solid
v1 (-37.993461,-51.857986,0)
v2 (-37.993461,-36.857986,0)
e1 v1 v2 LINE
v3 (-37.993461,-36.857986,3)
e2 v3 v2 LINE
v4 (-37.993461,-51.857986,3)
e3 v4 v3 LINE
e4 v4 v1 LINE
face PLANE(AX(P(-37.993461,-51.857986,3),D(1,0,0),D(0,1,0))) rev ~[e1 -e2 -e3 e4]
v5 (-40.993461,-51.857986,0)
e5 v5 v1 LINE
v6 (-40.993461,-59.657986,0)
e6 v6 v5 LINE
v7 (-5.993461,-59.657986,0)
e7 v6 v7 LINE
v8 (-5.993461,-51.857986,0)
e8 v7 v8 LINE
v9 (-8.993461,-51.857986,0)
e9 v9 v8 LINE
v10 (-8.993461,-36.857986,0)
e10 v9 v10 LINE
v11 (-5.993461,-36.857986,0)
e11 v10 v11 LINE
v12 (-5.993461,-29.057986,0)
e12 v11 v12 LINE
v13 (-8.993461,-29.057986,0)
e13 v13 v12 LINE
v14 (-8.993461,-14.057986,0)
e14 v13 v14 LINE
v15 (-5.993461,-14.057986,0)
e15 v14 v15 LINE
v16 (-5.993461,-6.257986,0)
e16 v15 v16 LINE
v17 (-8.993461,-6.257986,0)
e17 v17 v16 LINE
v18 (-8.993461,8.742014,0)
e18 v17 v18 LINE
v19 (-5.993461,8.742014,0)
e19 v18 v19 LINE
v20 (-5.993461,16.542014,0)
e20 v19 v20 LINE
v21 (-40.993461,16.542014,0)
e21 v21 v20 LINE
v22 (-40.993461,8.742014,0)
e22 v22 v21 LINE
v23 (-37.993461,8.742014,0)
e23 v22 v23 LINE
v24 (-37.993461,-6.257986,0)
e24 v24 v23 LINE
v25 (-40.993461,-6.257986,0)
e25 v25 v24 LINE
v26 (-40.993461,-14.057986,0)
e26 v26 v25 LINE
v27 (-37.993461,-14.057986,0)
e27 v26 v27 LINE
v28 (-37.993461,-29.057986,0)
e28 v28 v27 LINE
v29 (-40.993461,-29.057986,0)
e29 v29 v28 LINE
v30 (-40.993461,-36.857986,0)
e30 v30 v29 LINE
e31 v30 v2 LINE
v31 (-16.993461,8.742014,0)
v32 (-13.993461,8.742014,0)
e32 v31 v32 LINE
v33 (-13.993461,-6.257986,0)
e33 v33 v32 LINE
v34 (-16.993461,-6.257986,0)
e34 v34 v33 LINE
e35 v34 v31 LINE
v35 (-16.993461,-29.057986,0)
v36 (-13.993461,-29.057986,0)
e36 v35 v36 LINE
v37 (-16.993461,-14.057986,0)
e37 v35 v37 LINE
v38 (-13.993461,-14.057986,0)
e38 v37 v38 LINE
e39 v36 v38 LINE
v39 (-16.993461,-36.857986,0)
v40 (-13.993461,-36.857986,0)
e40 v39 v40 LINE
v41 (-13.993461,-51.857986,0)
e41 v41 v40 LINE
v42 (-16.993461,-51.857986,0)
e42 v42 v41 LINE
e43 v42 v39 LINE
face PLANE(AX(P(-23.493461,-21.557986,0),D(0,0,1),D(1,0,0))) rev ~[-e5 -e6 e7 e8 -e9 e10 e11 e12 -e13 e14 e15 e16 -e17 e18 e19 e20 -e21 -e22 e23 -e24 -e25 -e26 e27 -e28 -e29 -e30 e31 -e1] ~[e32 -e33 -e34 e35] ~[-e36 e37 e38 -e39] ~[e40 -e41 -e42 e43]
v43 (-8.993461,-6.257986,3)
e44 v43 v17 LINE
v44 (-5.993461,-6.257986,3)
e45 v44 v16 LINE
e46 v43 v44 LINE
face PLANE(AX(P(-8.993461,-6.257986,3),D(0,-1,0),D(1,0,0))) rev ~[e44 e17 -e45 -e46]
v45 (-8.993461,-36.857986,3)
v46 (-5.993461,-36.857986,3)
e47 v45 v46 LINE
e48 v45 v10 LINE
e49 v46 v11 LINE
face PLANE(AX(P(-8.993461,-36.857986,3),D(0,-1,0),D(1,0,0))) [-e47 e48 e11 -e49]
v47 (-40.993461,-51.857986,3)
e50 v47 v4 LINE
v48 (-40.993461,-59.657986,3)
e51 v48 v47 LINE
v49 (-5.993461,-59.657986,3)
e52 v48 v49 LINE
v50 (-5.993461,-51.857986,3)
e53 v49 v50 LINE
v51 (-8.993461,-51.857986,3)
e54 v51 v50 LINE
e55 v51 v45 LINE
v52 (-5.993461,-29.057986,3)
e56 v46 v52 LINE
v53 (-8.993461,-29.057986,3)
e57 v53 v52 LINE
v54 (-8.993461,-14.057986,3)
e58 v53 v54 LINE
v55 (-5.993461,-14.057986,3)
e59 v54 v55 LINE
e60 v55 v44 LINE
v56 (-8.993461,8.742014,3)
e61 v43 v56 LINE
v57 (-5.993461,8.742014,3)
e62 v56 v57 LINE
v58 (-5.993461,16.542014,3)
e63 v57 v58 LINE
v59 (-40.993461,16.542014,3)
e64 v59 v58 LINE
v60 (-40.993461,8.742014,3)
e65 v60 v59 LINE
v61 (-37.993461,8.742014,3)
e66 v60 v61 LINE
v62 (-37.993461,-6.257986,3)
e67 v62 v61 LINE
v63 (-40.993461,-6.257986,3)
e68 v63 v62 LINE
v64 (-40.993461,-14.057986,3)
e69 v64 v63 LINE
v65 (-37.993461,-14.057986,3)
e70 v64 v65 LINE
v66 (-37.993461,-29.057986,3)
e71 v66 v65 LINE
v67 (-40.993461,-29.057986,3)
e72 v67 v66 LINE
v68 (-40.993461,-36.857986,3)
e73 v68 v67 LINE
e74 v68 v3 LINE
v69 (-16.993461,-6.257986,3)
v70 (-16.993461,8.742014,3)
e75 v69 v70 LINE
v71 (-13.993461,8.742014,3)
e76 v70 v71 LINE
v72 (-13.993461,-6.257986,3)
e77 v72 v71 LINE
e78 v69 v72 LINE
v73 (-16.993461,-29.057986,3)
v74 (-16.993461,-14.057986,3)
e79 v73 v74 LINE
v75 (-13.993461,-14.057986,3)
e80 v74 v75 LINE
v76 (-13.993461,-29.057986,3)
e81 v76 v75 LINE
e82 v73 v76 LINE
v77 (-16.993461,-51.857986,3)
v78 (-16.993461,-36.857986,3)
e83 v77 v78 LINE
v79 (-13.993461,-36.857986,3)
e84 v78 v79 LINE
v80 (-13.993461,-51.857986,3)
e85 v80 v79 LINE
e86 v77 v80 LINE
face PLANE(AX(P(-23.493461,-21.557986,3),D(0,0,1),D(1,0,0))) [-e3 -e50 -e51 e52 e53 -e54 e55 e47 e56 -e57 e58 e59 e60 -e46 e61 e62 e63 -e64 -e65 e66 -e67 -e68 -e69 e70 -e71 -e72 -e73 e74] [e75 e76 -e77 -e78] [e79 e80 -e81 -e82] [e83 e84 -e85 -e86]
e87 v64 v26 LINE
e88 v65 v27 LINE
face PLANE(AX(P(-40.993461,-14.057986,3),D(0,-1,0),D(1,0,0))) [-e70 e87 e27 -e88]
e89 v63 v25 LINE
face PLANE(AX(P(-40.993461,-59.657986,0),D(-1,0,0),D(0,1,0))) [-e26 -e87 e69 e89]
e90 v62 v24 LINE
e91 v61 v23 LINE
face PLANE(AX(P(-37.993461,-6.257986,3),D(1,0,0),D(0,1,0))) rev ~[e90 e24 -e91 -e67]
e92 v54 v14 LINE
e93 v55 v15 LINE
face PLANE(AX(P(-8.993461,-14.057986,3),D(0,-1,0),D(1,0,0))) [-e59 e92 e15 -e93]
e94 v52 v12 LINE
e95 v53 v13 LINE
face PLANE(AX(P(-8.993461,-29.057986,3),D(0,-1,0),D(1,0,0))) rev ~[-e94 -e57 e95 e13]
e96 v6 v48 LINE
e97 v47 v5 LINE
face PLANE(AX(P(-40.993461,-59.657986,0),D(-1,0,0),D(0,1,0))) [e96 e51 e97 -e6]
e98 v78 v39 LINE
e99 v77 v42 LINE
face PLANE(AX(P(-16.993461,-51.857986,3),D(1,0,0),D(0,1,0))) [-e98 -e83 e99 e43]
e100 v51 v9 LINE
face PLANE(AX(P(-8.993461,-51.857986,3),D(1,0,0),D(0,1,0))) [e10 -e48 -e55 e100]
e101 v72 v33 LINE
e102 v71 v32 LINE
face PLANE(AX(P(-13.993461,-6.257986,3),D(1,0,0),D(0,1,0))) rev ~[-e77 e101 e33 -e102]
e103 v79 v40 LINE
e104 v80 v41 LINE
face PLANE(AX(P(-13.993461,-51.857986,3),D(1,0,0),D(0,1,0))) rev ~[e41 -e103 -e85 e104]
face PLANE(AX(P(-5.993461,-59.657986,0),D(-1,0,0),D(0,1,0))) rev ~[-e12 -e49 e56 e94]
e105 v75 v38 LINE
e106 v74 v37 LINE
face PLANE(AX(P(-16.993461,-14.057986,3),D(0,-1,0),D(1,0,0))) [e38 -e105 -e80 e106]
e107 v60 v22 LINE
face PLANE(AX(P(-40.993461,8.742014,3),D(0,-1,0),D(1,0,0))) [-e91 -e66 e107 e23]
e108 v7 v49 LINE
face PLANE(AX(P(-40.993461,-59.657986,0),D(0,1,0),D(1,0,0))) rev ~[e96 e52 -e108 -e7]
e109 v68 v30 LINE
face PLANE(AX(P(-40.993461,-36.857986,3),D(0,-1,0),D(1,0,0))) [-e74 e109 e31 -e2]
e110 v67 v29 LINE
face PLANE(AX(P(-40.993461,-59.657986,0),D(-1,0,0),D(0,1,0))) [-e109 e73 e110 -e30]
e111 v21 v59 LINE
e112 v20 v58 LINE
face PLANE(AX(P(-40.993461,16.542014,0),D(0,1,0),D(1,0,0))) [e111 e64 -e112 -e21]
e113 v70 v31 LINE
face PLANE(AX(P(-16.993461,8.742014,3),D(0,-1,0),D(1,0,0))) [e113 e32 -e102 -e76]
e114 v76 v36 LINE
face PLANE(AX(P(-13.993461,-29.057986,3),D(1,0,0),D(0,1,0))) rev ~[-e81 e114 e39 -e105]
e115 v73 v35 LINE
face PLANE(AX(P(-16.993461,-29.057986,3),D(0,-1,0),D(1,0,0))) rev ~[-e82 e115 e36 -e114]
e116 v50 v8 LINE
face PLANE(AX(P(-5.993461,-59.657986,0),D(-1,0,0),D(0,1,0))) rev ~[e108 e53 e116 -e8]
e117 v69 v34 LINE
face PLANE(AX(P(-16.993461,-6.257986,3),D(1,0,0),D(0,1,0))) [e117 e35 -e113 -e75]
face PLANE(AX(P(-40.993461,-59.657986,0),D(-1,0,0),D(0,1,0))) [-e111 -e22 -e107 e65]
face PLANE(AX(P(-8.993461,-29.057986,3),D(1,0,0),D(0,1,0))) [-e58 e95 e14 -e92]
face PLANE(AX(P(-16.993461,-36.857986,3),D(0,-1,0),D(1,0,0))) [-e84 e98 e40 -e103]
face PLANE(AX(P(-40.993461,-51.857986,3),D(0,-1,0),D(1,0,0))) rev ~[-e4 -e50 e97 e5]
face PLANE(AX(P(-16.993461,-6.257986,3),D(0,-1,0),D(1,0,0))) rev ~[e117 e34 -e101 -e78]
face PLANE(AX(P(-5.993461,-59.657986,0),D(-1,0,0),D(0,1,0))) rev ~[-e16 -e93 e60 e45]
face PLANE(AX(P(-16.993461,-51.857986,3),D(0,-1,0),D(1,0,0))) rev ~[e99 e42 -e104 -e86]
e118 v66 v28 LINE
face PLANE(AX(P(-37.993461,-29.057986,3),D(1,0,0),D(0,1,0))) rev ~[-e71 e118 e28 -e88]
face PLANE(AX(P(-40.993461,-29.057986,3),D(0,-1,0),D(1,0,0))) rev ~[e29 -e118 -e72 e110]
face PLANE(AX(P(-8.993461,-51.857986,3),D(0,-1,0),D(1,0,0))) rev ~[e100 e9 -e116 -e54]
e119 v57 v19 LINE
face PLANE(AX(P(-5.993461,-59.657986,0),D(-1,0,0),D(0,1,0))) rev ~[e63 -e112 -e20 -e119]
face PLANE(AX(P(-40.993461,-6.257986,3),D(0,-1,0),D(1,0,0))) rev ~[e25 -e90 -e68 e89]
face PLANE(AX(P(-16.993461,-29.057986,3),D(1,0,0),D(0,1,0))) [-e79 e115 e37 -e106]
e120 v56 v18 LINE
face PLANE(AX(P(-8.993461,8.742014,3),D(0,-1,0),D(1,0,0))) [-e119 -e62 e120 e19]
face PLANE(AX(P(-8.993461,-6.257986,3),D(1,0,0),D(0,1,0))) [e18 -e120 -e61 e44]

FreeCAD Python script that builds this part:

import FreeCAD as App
import Part
import Sketcher

V = App.Vector
Q = App.Units.Quantity


def add_polygon(sketch, points):
    """Adds a closed chain of lines whose ends are joined by coincident constraints."""
    first, n = sketch.GeometryCount, len(points)
    for a, b in zip(points, points[1:] + points[:1]):
        sketch.addGeometry(Part.LineSegment(App.Vector(*a, 0), App.Vector(*b, 0)), False)
    for i in range(n):
        sketch.addConstraint(Sketcher.Constraint("Coincident", first + i, 2, first + (i + 1) % n, 1))

doc = App.newDocument("Part")
body = doc.addObject("PartDesign::Body", "Body")

# Sketch on XY plane
sketch1 = body.newObject("Sketcher::SketchObject", "Sketch")
sketch1.AttachmentSupport = (doc.getObject("XY_Plane"), [""])
sketch1.MapMode = "FlatFace"
add_polygon(sketch1, [(-40.993461, 16.542014), (-40.993461, -59.657986), (-5.993461, -59.657986), (-5.993461, 16.542014)])  # lines 0-3
sketch1.addConstraint([
    Sketcher.Constraint("Vertical", 0),
    Sketcher.Constraint("Horizontal", 1),
    Sketcher.Constraint("Vertical", 2),
    Sketcher.Constraint("Horizontal", 3),
    Sketcher.Constraint("DistanceX", 1, 1, 1, 2, Q("35 mm")),
    Sketcher.Constraint("DistanceY", 0, 2, 0, 1, Q("76.2 mm")),
    Sketcher.Constraint("DistanceX", 0, 2, -1, 1, Q("40.993461 mm")),
    Sketcher.Constraint("DistanceY", 0, 2, -1, 1, Q("59.657986 mm")),
])
pad1 = body.newObject("PartDesign::Pad", "Pad")
pad1.Profile = sketch1
pad1.Length = 3

# Sketch on XY plane
sketch2 = body.newObject("Sketcher::SketchObject", "Sketch001")
sketch2.AttachmentSupport = (doc.getObject("XY_Plane"), [""])
sketch2.MapMode = "FlatFace"
sketch2.AttachmentOffset = App.Placement(V(0, 0, 3), App.Rotation())
add_polygon(sketch2, [(-40.993461, 8.742014), (-40.993461, -6.257986), (-37.993461, -6.257986), (-37.993461, 8.742014)])  # lines 0-3
add_polygon(sketch2, [(-8.993461, 8.742014), (-8.993461, -6.257986), (-5.993461, -6.257986), (-5.993461, 8.742014)])  # lines 4-7
sketch2.addConstraint([
    Sketcher.Constraint("Vertical", 0),
    Sketcher.Constraint("Horizontal", 1),
    Sketcher.Constraint("Vertical", 2),
    Sketcher.Constraint("Horizontal", 3),
    Sketcher.Constraint("Vertical", 4),
    Sketcher.Constraint("Horizontal", 5),
    Sketcher.Constraint("Vertical", 6),
    Sketcher.Constraint("Horizontal", 7),
    Sketcher.Constraint("Horizontal", 1, 2, 4, 2),
    Sketcher.Constraint("Horizontal", 3, 2, 6, 2),
    Sketcher.Constraint("Equal", 3, 5),
    Sketcher.Constraint("DistanceX", 1, 1, 1, 2, Q("3 mm")),
    Sketcher.Constraint("DistanceY", 0, 2, 0, 1, Q("15 mm")),
    Sketcher.Constraint("DistanceX", 1, 2, 4, 2, Q("29 mm")),
    Sketcher.Constraint("DistanceX", 0, 2, -1, 1, Q("40.993461 mm")),
    Sketcher.Constraint("DistanceY", 0, 2, -1, 1, Q("6.257986 mm")),
])
pocket1 = body.newObject("PartDesign::Pocket", "Pocket")
pocket1.Profile = sketch2
pocket1.Type = "ThroughAll"
doc.recompute()

linearpattern = body.newObject("PartDesign::LinearPattern", "LinearPattern")
linearpattern.Originals = [pocket1]
linearpattern.Direction = (doc.getObject("Y_Axis"), [""])
linearpattern.Mode = "offset"
linearpattern.Offset = 22.8
linearpattern.Occurrences = 3
linearpattern.Reversed = True
body.Tip = linearpattern

# Sketch on XY plane
sketch3 = body.newObject("Sketcher::SketchObject", "Sketch002")
sketch3.AttachmentSupport = (doc.getObject("XY_Plane"), [""])
sketch3.MapMode = "FlatFace"
sketch3.AttachmentOffset = App.Placement(V(0, 0, 3), App.Rotation())
add_polygon(sketch3, [(-16.993461, 8.742014), (-16.993461, -6.257986), (-13.993461, -6.257986), (-13.993461, 8.742014)])  # lines 0-3
sketch3.addConstraint([
    Sketcher.Constraint("Vertical", 0),
    Sketcher.Constraint("Horizontal", 1),
    Sketcher.Constraint("Vertical", 2),
    Sketcher.Constraint("Horizontal", 3),
    Sketcher.Constraint("DistanceX", 1, 1, 1, 2, Q("3 mm")),
    Sketcher.Constraint("DistanceY", 0, 2, 0, 1, Q("15 mm")),
    Sketcher.Constraint("DistanceX", 0, 2, -1, 1, Q("16.993461 mm")),
    Sketcher.Constraint("DistanceY", 0, 2, -1, 1, Q("6.257986 mm")),
])
pocket2 = body.newObject("PartDesign::Pocket", "Pocket001")
pocket2.Profile = sketch3
pocket2.Type = "ThroughAll"
doc.recompute()

linearpattern2 = body.newObject("PartDesign::LinearPattern", "LinearPattern001")
linearpattern2.Originals = [pocket2]
linearpattern2.Direction = (doc.getObject("Y_Axis"), [""])
linearpattern2.Mode = "offset"
linearpattern2.Offset = 22.8
linearpattern2.Occurrences = 3
linearpattern2.Reversed = True
body.Tip = linearpattern2

doc.recompute()
